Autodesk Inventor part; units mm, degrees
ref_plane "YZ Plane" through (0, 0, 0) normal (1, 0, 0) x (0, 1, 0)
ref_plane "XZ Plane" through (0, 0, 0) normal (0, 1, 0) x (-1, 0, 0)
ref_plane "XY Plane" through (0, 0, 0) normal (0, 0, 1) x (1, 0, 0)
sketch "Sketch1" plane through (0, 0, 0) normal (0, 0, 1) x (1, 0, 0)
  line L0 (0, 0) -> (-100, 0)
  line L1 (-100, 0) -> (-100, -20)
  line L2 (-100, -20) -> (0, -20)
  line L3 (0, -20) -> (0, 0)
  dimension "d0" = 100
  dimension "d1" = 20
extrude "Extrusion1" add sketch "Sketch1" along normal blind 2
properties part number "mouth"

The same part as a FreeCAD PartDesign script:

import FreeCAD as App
import Part
import Sketcher


def add_polygon(sketch, points):
    """Adds a closed chain of lines whose ends are joined by coincident constraints."""
    first, n = sketch.GeometryCount, len(points)
    for a, b in zip(points, points[1:] + points[:1]):
        sketch.addGeometry(Part.LineSegment(App.Vector(*a, 0), App.Vector(*b, 0)), False)
    for i in range(n):
        sketch.addConstraint(Sketcher.Constraint("Coincident", first + i, 2, first + (i + 1) % n, 1))

doc = App.newDocument("Part")
body = doc.addObject("PartDesign::Body", "Body")

# Sketch on XY plane
sketch1 = body.newObject("Sketcher::SketchObject", "Sketch")
sketch1.AttachmentSupport = (doc.getObject("XY_Plane"), [""])
sketch1.MapMode = "FlatFace"
add_polygon(sketch1, [(0, -20), (0, 0), (-100, 0), (-100, -20)])  # lines 0-3
sketch1.addConstraint([
    Sketcher.Constraint("Vertical", 0),
    Sketcher.Constraint("Horizontal", 1),
    Sketcher.Constraint("Vertical", 2),
    Sketcher.Constraint("Horizontal", 3),
    Sketcher.Constraint("Coincident", 0, 2, -1, 1),
    Sketcher.Constraint("DistanceX", 1, 2, 1, 1, 100.0),
    Sketcher.Constraint("DistanceY", 0, 1, 0, 2, 20.0),
])
pad1 = body.newObject("PartDesign::Pad", "Pad")
pad1.Profile = sketch1
pad1.Length = 2

doc.recompute()
